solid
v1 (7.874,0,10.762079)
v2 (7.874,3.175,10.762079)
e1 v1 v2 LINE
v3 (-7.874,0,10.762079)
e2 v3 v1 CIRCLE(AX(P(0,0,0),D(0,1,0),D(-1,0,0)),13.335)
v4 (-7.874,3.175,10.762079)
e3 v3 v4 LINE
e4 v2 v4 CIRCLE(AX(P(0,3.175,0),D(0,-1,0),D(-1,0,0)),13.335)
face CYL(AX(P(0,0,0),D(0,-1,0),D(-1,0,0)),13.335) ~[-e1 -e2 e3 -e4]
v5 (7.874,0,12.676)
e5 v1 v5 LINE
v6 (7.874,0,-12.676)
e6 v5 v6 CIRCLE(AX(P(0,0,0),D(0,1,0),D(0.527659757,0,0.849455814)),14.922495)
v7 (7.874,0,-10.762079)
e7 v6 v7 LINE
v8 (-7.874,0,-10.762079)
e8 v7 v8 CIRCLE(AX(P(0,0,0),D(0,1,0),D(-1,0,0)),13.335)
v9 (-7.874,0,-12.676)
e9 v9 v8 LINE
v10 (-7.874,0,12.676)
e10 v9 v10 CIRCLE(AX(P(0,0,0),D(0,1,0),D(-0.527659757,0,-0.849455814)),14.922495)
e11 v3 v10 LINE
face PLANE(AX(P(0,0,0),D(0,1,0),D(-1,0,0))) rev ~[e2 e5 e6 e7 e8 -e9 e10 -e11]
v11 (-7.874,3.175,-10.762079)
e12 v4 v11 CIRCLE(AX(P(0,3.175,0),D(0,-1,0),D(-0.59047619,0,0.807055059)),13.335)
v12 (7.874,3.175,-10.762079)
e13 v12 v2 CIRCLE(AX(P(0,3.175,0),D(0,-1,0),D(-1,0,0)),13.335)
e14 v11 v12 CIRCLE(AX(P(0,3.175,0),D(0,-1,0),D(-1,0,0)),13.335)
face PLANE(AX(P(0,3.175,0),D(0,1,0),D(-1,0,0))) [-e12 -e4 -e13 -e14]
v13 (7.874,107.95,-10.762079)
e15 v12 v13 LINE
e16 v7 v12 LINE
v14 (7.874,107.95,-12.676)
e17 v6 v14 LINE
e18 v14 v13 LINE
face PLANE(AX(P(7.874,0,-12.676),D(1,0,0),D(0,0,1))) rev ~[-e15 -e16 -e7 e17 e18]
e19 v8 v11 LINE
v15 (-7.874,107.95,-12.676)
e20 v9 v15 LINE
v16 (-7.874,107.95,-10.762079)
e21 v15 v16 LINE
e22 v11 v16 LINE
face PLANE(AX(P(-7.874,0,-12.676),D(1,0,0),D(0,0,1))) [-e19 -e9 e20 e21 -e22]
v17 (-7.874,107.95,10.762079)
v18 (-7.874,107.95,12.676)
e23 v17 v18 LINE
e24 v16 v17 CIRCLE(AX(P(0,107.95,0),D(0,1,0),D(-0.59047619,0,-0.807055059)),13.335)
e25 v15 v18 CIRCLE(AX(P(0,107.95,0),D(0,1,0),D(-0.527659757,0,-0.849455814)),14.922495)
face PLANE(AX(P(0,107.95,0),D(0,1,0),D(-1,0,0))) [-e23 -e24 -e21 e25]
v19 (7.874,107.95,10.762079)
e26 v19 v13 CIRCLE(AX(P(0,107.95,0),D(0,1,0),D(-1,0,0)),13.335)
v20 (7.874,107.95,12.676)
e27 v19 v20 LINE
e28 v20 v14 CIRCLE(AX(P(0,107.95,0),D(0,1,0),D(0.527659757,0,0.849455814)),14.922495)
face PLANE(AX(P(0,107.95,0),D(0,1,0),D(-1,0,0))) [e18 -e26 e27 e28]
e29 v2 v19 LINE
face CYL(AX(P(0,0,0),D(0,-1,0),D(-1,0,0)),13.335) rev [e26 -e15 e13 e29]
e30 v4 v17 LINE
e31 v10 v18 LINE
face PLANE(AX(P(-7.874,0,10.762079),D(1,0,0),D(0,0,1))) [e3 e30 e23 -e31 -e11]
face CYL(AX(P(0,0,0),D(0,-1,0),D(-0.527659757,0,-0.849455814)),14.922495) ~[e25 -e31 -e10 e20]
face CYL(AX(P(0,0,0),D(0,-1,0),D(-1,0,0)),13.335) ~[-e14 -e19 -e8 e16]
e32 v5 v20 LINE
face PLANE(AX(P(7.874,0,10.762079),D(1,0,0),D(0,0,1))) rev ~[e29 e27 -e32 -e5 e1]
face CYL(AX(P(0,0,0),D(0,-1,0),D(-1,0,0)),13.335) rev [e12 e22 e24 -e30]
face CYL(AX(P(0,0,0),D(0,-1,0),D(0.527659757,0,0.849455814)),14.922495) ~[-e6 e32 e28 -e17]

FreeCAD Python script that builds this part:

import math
import FreeCAD as App
import Part
import Sketcher
from FreeCAD import Vector
Q = App.Units.Quantity

doc = App.newDocument("Part")
body = doc.addObject("PartDesign::Body", "Body")
body.AllowCompound = True

# Sketch on XZ plane
sketch1 = body.newObject("Sketcher::SketchObject", "Sketch")
sketch1.AttachmentSupport = (doc.getObject("XZ_Plane"), [""])
sketch1.MapMode = "FlatFace"
sketch1.addGeometry([
    Part.ArcOfCircle(Part.Circle(Vector(0, 0, 0), Vector(0, 0, 1), 13.335), math.radians(126.190807), math.radians(233.809193)),  # 0
    Part.LineSegment(Vector(-7.874, -10.762079, 0), Vector(-7.874, -12.676, 0)),  # 1
    Part.ArcOfCircle(Part.Circle(Vector(0, 0, 0), Vector(0, 0, 1), 14.922495), math.radians(121.84747), math.radians(238.15253)),  # 2
    Part.LineSegment(Vector(-7.874, 12.676, 0), Vector(-7.874, 10.762079, 0)),  # 3
    Part.ArcOfCircle(Part.Circle(Vector(0, 0, 0), Vector(0, 0, 1), 13.335), math.radians(-53.809193), math.radians(53.809193)),  # 4
    Part.LineSegment(Vector(7.874, 10.762079, 0), Vector(7.874, 12.676, 0)),  # 5
    Part.ArcOfCircle(Part.Circle(Vector(0, 0, 0), Vector(0, 0, 1), 14.922495), math.radians(-58.15253), math.radians(58.15253)),  # 6
    Part.LineSegment(Vector(7.874, -12.676, 0), Vector(7.874, -10.762079, 0)),  # 7
], False)
sketch1.addConstraint([
    Sketcher.Constraint("Coincident", 0, 2, 1, 1),
    Sketcher.Constraint("Coincident", 1, 2, 2, 2),
    Sketcher.Constraint("Coincident", 2, 1, 3, 1),
    Sketcher.Constraint("Coincident", 3, 2, 0, 1),
    Sketcher.Constraint("Coincident", 4, 2, 5, 1),
    Sketcher.Constraint("Coincident", 5, 2, 6, 2),
    Sketcher.Constraint("Coincident", 6, 1, 7, 1),
    Sketcher.Constraint("Coincident", 7, 2, 4, 1),
    Sketcher.Constraint("Vertical", 1),
    Sketcher.Constraint("Vertical", 3),
    Sketcher.Constraint("Vertical", 5),
    Sketcher.Constraint("Vertical", 7),
    Sketcher.Constraint("Coincident", 0, 3, -1, 1),
    Sketcher.Constraint("Coincident", 2, 3, -1, 1),
    Sketcher.Constraint("Coincident", 4, 3, -1, 1),
    Sketcher.Constraint("Coincident", 6, 3, -1, 1),
    Sketcher.Constraint("Equal", 0, 4),
    Sketcher.Constraint("Equal", 2, 6),
    Sketcher.Constraint("Horizontal", 3, 2, 4, 2),
    Sketcher.Constraint("Horizontal", 1, 2, 6, 1),
    Sketcher.Constraint("Vertical", 1, 2, 2, 1),
    Sketcher.Constraint("Radius", 0, Q("0.525 in")),
    Sketcher.Constraint("DistanceX", 0, 2, -1, 1, Q("0.31 in")),
    Sketcher.Constraint("Radius", 2, Q("0.5875 in")),
])
pad1 = body.newObject("PartDesign::Pad", "Pad")
pad1.Profile = sketch1
pad1.Length = Q("4.25 in")
pad1.Reversed = True

# Sketch on XZ plane
sketch2 = body.newObject("Sketcher::SketchObject", "Sketch001")
sketch2.AttachmentSupport = (doc.getObject("XZ_Plane"), [""])
sketch2.MapMode = "FlatFace"
sketch2.addGeometry(Part.Circle(Vector(0, 0, 0), Vector(0, 0, 1), 13.335), False)
sketch2.addConstraint([
    Sketcher.Constraint("Coincident", 0, 3, -1, 1),
    Sketcher.Constraint("Diameter", 0, Q("1.05 in")),
])
pad2 = body.newObject("PartDesign::Pad", "Pad001")
pad2.Profile = sketch2
pad2.Length = Q("0.125 in")
pad2.Reversed = True

doc.recompute()
